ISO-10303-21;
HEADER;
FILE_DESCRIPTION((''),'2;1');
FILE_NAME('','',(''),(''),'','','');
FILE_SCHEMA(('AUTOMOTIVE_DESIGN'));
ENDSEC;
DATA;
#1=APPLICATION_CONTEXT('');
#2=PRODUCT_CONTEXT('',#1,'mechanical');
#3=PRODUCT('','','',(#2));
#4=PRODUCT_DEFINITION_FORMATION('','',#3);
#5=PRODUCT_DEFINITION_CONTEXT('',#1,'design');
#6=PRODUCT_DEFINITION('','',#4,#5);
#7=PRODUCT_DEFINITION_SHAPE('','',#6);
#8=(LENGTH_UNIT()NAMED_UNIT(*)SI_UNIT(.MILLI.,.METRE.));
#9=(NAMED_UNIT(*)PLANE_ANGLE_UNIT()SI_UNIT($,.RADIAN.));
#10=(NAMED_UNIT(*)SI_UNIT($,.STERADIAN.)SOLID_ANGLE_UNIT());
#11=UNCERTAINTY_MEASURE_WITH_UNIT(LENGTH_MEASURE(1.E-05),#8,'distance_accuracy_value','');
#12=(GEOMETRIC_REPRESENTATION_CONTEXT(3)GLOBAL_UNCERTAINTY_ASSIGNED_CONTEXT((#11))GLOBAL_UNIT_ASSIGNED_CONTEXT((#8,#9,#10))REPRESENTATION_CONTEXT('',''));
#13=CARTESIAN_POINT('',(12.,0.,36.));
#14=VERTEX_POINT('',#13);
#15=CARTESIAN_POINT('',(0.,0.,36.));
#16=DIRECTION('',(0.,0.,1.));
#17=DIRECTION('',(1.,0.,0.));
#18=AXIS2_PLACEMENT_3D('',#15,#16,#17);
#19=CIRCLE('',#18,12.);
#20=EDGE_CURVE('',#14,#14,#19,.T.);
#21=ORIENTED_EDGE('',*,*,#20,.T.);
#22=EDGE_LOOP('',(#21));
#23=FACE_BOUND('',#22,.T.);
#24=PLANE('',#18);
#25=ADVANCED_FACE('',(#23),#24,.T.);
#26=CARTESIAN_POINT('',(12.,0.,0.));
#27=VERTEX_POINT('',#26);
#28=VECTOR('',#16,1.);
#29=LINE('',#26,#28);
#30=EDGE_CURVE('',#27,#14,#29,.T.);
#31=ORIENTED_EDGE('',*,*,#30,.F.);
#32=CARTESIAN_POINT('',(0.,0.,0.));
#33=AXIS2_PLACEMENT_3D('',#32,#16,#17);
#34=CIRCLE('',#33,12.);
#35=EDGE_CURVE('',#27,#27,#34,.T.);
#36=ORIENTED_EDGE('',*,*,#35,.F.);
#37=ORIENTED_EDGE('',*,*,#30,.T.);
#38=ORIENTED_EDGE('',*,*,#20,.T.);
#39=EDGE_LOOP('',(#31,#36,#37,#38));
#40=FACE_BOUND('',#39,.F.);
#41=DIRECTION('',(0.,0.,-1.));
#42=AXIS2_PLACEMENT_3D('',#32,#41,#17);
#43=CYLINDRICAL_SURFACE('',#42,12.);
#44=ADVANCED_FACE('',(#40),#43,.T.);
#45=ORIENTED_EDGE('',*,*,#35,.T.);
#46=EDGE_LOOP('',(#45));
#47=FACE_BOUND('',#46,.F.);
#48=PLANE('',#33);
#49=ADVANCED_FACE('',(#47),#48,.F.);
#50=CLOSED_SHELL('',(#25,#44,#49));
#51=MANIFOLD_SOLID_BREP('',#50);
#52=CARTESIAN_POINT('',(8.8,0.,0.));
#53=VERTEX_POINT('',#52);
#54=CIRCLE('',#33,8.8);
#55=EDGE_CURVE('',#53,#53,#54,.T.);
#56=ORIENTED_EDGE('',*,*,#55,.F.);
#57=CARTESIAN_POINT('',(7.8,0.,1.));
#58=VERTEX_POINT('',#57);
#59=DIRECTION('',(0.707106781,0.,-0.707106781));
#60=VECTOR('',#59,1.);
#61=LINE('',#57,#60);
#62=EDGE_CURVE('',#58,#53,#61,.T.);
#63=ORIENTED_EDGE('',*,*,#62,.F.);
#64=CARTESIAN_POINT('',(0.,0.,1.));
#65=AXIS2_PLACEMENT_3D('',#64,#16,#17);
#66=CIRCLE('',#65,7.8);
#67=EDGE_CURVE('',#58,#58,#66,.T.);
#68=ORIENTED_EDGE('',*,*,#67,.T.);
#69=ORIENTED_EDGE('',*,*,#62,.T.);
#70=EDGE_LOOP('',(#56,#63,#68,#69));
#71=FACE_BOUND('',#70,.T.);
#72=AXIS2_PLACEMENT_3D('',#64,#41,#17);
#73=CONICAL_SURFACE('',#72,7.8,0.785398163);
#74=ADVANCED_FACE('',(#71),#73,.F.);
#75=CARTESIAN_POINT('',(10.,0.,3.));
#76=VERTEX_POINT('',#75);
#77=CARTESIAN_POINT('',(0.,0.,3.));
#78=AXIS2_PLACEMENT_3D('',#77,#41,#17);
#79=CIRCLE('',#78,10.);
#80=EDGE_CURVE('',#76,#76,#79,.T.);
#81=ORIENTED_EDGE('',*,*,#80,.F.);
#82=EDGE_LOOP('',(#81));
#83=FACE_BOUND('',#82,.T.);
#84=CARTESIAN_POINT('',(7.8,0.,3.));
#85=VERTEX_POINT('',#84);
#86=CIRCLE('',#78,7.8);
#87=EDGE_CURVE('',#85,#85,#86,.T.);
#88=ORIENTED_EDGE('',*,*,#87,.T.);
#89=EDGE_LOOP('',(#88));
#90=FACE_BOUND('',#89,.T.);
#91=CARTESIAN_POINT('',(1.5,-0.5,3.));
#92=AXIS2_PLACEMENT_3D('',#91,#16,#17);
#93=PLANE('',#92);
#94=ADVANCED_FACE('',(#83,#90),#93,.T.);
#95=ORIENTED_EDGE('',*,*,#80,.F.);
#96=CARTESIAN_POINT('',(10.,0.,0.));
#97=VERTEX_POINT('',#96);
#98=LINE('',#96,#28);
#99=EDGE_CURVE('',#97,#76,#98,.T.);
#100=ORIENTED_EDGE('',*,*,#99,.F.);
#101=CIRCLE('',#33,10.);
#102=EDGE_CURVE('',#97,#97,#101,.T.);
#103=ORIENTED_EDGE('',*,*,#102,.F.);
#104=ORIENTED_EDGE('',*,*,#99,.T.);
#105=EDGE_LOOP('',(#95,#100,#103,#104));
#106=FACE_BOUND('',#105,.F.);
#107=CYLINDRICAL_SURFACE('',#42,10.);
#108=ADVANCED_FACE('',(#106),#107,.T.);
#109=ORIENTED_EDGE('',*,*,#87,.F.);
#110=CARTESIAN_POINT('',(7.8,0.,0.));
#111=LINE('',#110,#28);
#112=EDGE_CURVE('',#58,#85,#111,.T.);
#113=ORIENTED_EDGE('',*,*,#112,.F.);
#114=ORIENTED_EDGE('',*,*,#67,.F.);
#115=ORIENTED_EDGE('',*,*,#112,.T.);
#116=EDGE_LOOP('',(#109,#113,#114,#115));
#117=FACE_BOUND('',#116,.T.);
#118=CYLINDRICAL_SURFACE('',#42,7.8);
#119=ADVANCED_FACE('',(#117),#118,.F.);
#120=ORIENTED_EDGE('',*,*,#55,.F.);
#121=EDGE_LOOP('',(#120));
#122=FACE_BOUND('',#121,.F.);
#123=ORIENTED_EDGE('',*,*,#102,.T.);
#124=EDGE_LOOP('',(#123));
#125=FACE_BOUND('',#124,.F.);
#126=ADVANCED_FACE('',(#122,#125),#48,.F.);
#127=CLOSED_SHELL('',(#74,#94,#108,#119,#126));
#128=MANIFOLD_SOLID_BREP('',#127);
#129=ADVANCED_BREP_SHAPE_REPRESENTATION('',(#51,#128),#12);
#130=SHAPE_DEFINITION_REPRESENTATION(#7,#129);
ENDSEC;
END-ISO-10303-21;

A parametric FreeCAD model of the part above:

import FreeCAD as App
import Part
import Sketcher


def edges_at(feature, points):
    """Names of the edges that pass closest to the given points."""
    edges = feature.Shape.Edges
    near = lambda p: min(range(len(edges)), key=lambda i: edges[i].distToShape(Part.Vertex(*p))[0])
    return sorted({f"Edge{near(p) + 1}" for p in points})

doc = App.newDocument("Part")
body = doc.addObject("PartDesign::Body", "Body")

sketch1 = body.newObject("Sketcher::SketchObject", "Sketch")
sketch1.AttachmentSupport = (doc.getObject("XY_Plane"), [""])
sketch1.MapMode = "FlatFace"
sketch1.addGeometry(Part.Circle(App.Vector(0, 0, 0), App.Vector(0, 0, 1), 12), False)
sketch1.addConstraint([
    Sketcher.Constraint("Coincident", 0, 3, -1, 1),
    Sketcher.Constraint("Diameter", 0, 24.0),
])
pad1 = body.newObject("PartDesign::Pad", "Pad")
pad1.Profile = sketch1
pad1.Length = 36
body2 = doc.addObject("PartDesign::Body", "Body001")

sketch2 = body2.newObject("Sketcher::SketchObject", "Sketch001")
sketch2.AttachmentSupport = (doc.getObject("XY_Plane001"), [""])
sketch2.MapMode = "FlatFace"
sketch2.AttachmentOffset = App.Placement(App.Vector(0, 0, 3), App.Rotation())
sketch2.addGeometry([
    Part.LineSegment(App.Vector(-11, 12, 0), App.Vector(-11, -13, 0)),
    Part.LineSegment(App.Vector(-11, -13, 0), App.Vector(14, -13, 0)),
    Part.LineSegment(App.Vector(14, -13, 0), App.Vector(14, 12, 0)),
    Part.LineSegment(App.Vector(14, 12, 0), App.Vector(-11, 12, 0)),
], False)
sketch2.addConstraint([
    Sketcher.Constraint("Coincident", 0, 2, 1, 1),
    Sketcher.Constraint("Coincident", 1, 2, 2, 1),
    Sketcher.Constraint("Coincident", 2, 2, 3, 1),
    Sketcher.Constraint("Coincident", 3, 2, 0, 1),
    Sketcher.Constraint("Vertical", 0),
    Sketcher.Constraint("Horizontal", 1),
    Sketcher.Constraint("Vertical", 2),
    Sketcher.Constraint("Horizontal", 3),
    Sketcher.Constraint("Equal", 3, 0),
    Sketcher.Constraint("DistanceX", 1, 1, 1, 2, 25.0),
    Sketcher.Constraint("DistanceX", 0, 2, -1, 1, 11.0),
    Sketcher.Constraint("DistanceY", 0, 2, -1, 1, 13.0),
])
pad2 = body2.newObject("PartDesign::Pad", "Pad001")
pad2.Profile = sketch2
pad2.Length = 36
body3 = doc.addObject("PartDesign::Body", "Body002")

sketch3 = body3.newObject("Sketcher::SketchObject", "Sketch002")
sketch3.AttachmentSupport = (doc.getObject("XY_Plane002"), [""])
sketch3.MapMode = "FlatFace"
sketch3.AttachmentOffset = App.Placement(App.Vector(0, 0, 12), App.Rotation())
sketch3.addGeometry(Part.Circle(App.Vector(0, 0, 0), App.Vector(0, 0, 1), 5), False)
sketch3.addConstraint([
    Sketcher.Constraint("Coincident", 0, 3, -1, 1),
    Sketcher.Constraint("Diameter", 0, 10.0),
])
pad3 = body3.newObject("PartDesign::Pad", "Pad002")
pad3.Profile = sketch3
pad3.Length = 12
body4 = doc.addObject("PartDesign::Body", "Body003")

sketch4 = body4.newObject("Sketcher::SketchObject", "Sketch003")
sketch4.AttachmentSupport = (doc.getObject("XY_Plane003"), [""])
sketch4.MapMode = "FlatFace"
sketch4.addGeometry(Part.Circle(App.Vector(0, 0, 0), App.Vector(0, 0, 1), 7.8), False)
sketch4.addConstraint([
    Sketcher.Constraint("Coincident", 0, 3, -1, 1),
    Sketcher.Constraint("Diameter", 0, 15.6),
])
pad4 = body4.newObject("PartDesign::Pad", "Pad003")
pad4.Profile = sketch4
pad4.Length = 12
doc.recompute()

boolean = body4.newObject("PartDesign::Boolean", "Boolean")
boolean.Type = "Fuse"
boolean.addObjects([body3])
body5 = doc.addObject("PartDesign::Body", "Body004")

sketch5 = body5.newObject("Sketcher::SketchObject", "Sketch004")
sketch5.AttachmentSupport = (doc.getObject("XY_Plane004"), [""])
sketch5.MapMode = "FlatFace"
sketch5.addGeometry(Part.Circle(App.Vector(0, 0, 0), App.Vector(0, 0, 1), 10), False)
sketch5.addConstraint([
    Sketcher.Constraint("Coincident", 0, 3, -1, 1),
    Sketcher.Constraint("Diameter", 0, 20.0),
])
pad5 = body5.newObject("PartDesign::Pad", "Pad004")
pad5.Profile = sketch5
pad5.Length = 28
doc.recompute()

boolean2 = body5.newObject("PartDesign::Boolean", "Boolean001")
boolean2.Type = "Cut"
boolean2.addObjects([body4])
doc.recompute()

chamfer = body5.newObject("PartDesign::Chamfer", "Chamfer")
chamfer.Base = (boolean2, edges_at(boolean2, [(-5, 0, 12)]))
chamfer.Size = 2.7
doc.recompute()

chamfer2 = body5.newObject("PartDesign::Chamfer", "Chamfer001")
chamfer2.Base = (chamfer, edges_at(chamfer, [(-7.8, 0, 0)]))
chamfer2.Size = 1
doc.recompute()

boolean3 = body5.newObject("PartDesign::Boolean", "Boolean002")
boolean3.Type = "Cut"
boolean3.addObjects([body2])

doc.recompute()
